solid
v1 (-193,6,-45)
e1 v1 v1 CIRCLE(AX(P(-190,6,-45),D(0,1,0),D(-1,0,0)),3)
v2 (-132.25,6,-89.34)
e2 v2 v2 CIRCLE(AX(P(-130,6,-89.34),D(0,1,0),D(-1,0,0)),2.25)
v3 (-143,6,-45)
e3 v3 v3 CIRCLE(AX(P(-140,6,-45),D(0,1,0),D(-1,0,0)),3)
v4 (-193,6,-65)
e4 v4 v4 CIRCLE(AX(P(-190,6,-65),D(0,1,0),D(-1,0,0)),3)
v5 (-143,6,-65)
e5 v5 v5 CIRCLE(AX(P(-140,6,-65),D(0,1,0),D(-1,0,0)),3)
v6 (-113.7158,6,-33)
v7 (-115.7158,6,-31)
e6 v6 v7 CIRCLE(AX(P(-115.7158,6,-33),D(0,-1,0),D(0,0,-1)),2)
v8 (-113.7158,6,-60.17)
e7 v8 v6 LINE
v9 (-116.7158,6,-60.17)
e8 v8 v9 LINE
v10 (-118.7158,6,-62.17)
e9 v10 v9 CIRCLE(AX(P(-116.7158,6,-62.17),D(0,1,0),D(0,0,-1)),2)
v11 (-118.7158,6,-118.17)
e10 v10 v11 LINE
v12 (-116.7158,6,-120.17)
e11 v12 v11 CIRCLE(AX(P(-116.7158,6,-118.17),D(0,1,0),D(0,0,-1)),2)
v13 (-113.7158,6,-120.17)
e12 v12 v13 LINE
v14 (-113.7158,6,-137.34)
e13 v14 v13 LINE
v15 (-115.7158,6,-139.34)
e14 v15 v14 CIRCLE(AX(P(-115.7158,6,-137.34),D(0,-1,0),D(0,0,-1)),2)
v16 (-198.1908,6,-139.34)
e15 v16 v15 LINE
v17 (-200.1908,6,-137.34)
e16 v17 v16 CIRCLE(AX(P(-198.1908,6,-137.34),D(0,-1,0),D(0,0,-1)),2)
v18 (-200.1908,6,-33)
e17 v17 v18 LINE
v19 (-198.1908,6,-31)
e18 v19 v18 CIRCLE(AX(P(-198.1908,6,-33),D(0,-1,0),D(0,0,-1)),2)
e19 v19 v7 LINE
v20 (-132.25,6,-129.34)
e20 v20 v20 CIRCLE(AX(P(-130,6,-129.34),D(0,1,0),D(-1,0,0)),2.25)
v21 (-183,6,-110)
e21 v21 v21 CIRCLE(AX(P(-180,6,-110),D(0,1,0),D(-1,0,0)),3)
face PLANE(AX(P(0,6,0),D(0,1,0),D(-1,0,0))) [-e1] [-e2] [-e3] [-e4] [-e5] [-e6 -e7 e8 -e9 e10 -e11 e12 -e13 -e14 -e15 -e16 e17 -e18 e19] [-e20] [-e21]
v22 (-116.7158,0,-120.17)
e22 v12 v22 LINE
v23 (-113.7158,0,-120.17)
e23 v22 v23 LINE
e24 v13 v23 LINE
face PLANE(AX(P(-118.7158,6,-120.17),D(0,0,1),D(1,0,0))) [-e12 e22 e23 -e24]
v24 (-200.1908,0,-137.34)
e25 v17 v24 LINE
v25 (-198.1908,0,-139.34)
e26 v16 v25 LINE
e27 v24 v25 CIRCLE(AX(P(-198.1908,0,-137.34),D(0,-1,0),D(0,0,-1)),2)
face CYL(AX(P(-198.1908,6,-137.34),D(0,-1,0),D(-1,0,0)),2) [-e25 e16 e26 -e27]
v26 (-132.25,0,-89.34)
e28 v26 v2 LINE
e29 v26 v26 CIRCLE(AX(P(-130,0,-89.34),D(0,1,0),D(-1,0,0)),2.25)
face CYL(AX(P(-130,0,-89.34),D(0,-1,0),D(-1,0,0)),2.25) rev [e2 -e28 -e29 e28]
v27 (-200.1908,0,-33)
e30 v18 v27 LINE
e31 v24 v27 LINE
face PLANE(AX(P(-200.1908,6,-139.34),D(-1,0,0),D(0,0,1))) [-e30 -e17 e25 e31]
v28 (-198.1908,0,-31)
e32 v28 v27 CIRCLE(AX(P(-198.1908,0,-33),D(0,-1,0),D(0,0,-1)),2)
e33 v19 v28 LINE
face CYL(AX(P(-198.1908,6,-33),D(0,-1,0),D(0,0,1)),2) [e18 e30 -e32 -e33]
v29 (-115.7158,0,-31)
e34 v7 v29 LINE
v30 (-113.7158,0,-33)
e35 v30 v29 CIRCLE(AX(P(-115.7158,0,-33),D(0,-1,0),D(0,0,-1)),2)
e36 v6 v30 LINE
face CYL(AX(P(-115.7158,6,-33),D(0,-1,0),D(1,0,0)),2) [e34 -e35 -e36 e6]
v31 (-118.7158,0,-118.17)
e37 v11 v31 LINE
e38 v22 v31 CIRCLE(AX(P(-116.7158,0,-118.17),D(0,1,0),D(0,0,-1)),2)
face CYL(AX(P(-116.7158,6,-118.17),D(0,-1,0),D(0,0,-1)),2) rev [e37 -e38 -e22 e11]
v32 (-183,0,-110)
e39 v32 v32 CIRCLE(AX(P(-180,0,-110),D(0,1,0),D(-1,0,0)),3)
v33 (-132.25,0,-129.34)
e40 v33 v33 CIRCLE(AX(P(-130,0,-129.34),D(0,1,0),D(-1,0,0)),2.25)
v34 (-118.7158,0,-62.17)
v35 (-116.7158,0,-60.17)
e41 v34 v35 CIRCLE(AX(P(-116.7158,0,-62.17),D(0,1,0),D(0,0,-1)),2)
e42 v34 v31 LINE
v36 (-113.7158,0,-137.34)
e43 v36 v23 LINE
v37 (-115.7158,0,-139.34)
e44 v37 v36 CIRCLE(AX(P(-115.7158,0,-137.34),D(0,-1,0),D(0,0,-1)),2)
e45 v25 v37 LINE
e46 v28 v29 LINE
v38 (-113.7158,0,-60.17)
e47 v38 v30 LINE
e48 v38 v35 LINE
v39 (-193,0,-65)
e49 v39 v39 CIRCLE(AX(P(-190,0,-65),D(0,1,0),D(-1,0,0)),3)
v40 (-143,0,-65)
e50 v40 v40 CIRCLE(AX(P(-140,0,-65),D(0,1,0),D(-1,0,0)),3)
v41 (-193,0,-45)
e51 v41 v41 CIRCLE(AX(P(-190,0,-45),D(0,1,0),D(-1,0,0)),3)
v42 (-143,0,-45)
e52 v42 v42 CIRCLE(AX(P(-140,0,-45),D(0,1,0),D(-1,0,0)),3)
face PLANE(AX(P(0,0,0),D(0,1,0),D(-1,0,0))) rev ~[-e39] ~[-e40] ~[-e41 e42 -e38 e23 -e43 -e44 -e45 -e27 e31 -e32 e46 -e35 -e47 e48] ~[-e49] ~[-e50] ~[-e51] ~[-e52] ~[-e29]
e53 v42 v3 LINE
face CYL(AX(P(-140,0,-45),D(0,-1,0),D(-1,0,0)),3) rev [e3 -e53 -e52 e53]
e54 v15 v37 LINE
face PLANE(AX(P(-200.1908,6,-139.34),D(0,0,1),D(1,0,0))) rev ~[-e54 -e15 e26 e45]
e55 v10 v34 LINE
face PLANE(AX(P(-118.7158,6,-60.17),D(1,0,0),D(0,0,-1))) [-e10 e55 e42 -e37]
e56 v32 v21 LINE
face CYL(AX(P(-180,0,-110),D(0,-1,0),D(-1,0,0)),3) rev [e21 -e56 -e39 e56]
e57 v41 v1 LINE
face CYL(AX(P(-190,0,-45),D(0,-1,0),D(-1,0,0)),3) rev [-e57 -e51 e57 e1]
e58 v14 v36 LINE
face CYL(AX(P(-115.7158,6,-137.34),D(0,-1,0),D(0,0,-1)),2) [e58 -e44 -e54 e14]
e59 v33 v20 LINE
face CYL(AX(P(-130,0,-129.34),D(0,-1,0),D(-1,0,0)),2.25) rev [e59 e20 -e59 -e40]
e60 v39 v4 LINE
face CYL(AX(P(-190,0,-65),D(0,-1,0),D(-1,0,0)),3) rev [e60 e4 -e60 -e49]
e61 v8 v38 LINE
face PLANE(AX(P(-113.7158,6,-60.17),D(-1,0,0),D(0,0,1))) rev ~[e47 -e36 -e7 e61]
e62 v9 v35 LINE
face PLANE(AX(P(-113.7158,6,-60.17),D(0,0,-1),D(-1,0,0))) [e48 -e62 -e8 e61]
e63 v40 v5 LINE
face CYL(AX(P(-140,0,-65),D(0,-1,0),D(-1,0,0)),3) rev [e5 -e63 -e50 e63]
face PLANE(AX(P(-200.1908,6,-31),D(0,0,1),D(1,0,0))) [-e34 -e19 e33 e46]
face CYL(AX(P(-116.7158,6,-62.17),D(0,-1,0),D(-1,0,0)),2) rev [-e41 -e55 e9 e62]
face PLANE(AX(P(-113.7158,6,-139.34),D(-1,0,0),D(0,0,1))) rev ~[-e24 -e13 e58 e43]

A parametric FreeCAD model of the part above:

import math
import FreeCAD as App
import Part
import Sketcher
from FreeCAD import Vector


def edges_at(feature, points):
    """Names of the edges that pass closest to the given points."""
    edges = feature.Shape.Edges
    near = lambda p: min(range(len(edges)), key=lambda i: edges[i].distToShape(Part.Vertex(*p))[0])
    return sorted({f"Edge{near(p) + 1}" for p in points})


def add_polygon(sketch, points):
    """Adds a closed chain of lines whose ends are joined by coincident constraints."""
    first, n = sketch.GeometryCount, len(points)
    for a, b in zip(points, points[1:] + points[:1]):
        sketch.addGeometry(Part.LineSegment(App.Vector(*a, 0), App.Vector(*b, 0)), False)
    for i in range(n):
        sketch.addConstraint(Sketcher.Constraint("Coincident", first + i, 2, first + (i + 1) % n, 1))

doc = App.newDocument("Part")
params = doc.addObject("Spreadsheet::Sheet", "Params")
for row, (alias, value) in enumerate([
    ("sketch1_diameter", "6 mm"),
    ("sketch1_diameter2", "4.5 mm"),
    ("pad1_length", "6 mm"),
    ("sketch2_height", "60 mm"),
    ("sketch2_width", "5 mm"),
    ("sketch2_height2", "29.17 mm"),
    ("sketch2_height3", "108.34 mm"),
    ("fillet_radius", "2 mm"),
], start=1):
    params.set(f"A{row}", alias)
    params.set(f"B{row}", "=" + value)
    params.setAlias(f"B{row}", alias)

body = doc.addObject("PartDesign::Body", "Body")

# Sketch on XZ plane
sketch1 = body.newObject("Sketcher::SketchObject", "Sketch")
sketch1.AttachmentSupport = (doc.getObject("XZ_Plane"), [""])
sketch1.MapMode = "FlatFace"
sketch1.addGeometry([
    Part.ArcOfCircle(Part.Circle(Vector(-227.4, -176.6, 0), Vector(0, 0, 1), 2.8), math.radians(180), math.radians(270)),  # 0
    Part.LineSegment(Vector(-230.2, -176.6, 0), Vector(-230.2, -3.8, 0)),  # 1
    Part.ArcOfCircle(Part.Circle(Vector(-227.4, -3.8, 0), Vector(0, 0, 1), 2.8), math.radians(90), math.radians(180)),  # 2
    Part.LineSegment(Vector(-227.4, -1, 0), Vector(0, -1, 0)),  # 3
    Part.ArcOfCircle(Part.Circle(Vector(0, -3.8, 0), Vector(0, 0, 1), 2.8), math.radians(0), math.radians(90)),  # 4
    Part.LineSegment(Vector(2.8, -3.8, 0), Vector(2.8, -176.6, 0)),  # 5
    Part.ArcOfCircle(Part.Circle(Vector(0, -176.6, 0), Vector(0, 0, 1), 2.8), math.radians(-90), math.radians(0)),  # 6
    Part.LineSegment(Vector(0, -179.3, 0), Vector(-227.4, -179.3, 0)),  # 7
    Part.Circle(Vector(-90, -129.3, 0), Vector(0, 0, 1), 2.2),  # 8
    Part.Circle(Vector(-55, -110, 0), Vector(0, 0, 1), 3),  # 9
    Part.Circle(Vector(-130, -129.3, 0), Vector(0, 0, 1), 2.2),  # 10
    Part.Circle(Vector(-180, -110, 0), Vector(0, 0, 1), 3),  # 11
    Part.Circle(Vector(-40, -65, 0), Vector(0, 0, 1), 3),  # 12
    Part.Circle(Vector(-40, -45, 0), Vector(0, 0, 1), 3),  # 13
    Part.Circle(Vector(-90, -89.3, 0), Vector(0, 0, 1), 2.2),  # 14
    Part.Circle(Vector(-90, -65, 0), Vector(0, 0, 1), 3),  # 15
    Part.Circle(Vector(-90, -45, 0), Vector(0, 0, 1), 3),  # 16
    Part.Circle(Vector(-130, -89.3, 0), Vector(0, 0, 1), 2.2),  # 17
    Part.Circle(Vector(-140, -65, 0), Vector(0, 0, 1), 3),  # 18
    Part.Circle(Vector(-140, -45, 0), Vector(0, 0, 1), 3),  # 19
    Part.Circle(Vector(-190, -65, 0), Vector(0, 0, 1), 3),  # 20
    Part.Circle(Vector(-190, -45, 0), Vector(0, 0, 1), 3),  # 21
], False)
sketch1.addConstraint([
    Sketcher.Constraint("Tangent", 0, 1, 1, 1),
    Sketcher.Constraint("Tangent", 1, 2, 2, 2),
    Sketcher.Constraint("Tangent", 2, 1, 3, 1),
    Sketcher.Constraint("Tangent", 3, 2, 4, 2),
    Sketcher.Constraint("Tangent", 4, 1, 5, 1),
    Sketcher.Constraint("Tangent", 5, 2, 6, 2),
    Sketcher.Constraint("Tangent", 6, 1, 7, 1),
    Sketcher.Constraint("Tangent", 7, 2, 0, 2),
    Sketcher.Constraint("Vertical", 1),
    Sketcher.Constraint("Horizontal", 3),
    Sketcher.Constraint("Vertical", 5),
    Sketcher.Constraint("Horizontal", 7),
    Sketcher.Constraint("Equal", 0, 2),
    Sketcher.Constraint("Equal", 2, 4),
    Sketcher.Constraint("Equal", 4, 6),
    Sketcher.Constraint("Equal", 8, 10),
    Sketcher.Constraint("Equal", 9, 11),
    Sketcher.Constraint("Equal", 11, 12),
    Sketcher.Constraint("Equal", 12, 13),
    Sketcher.Constraint("Equal", 10, 14),
    Sketcher.Constraint("Equal", 13, 15),
    Sketcher.Constraint("Equal", 15, 16),
    Sketcher.Constraint("Equal", 14, 17),
    Sketcher.Constraint("Equal", 16, 18),
    Sketcher.Constraint("Equal", 18, 19),
    Sketcher.Constraint("Equal", 19, 20),
    Sketcher.Constraint("Equal", 20, 21),
    Sketcher.Constraint("PointOnObject", 4, 3, -2),
    Sketcher.Constraint("Horizontal", 8, 3, 10, 3),
    Sketcher.Constraint("Horizontal", 9, 3, 11, 3),
    Sketcher.Constraint("Horizontal", 12, 3, 15, 3),
    Sketcher.Constraint("Horizontal", 13, 3, 16, 3),
    Sketcher.Constraint("Horizontal", 14, 3, 17, 3),
    Sketcher.Constraint("Horizontal", 15, 3, 18, 3),
    Sketcher.Constraint("Horizontal", 16, 3, 19, 3),
    Sketcher.Constraint("Horizontal", 18, 3, 20, 3),
    Sketcher.Constraint("Horizontal", 19, 3, 21, 3),
    Sketcher.Constraint("Vertical", 12, 3, 13, 3),
    Sketcher.Constraint("Vertical", 8, 3, 14, 3),
    Sketcher.Constraint("Vertical", 14, 3, 15, 3),
    Sketcher.Constraint("Vertical", 15, 3, 16, 3),
    Sketcher.Constraint("Vertical", 10, 3, 17, 3),
    Sketcher.Constraint("Vertical", 18, 3, 19, 3),
    Sketcher.Constraint("Vertical", 20, 3, 21, 3),
    Sketcher.Constraint("Diameter", 9, 6.0),
    Sketcher.Constraint("Diameter", 8, 4.5),
    Sketcher.Constraint("DistanceX", 8, 3, -1, 1, 90.0),
    Sketcher.Constraint("DistanceX", 9, 3, -1, 1, 55.0),
    Sketcher.Constraint("DistanceY", 9, 3, -1, 1, 110.0),
    Sketcher.Constraint("DistanceX", 12, 3, -1, 1, 40.0),
    Sketcher.Constraint("DistanceY", 2, 1, -1, 1, 1.0),
    Sketcher.Constraint("DistanceX", 10, 3, 8, 3, 40.0),
    Sketcher.Constraint("DistanceX", 11, 3, 10, 3, 50.0),
    Sketcher.Constraint("DistanceY", 8, 3, 14, 3, 40.0),
    Sketcher.Constraint("DistanceX", 18, 3, 15, 3, 50.0),
    Sketcher.Constraint("DistanceX", 20, 3, 18, 3, 50.0),
    Sketcher.Constraint("DistanceY", 6, 1, 8, 3, 50.0),
    Sketcher.Constraint("Radius", 0, 2.7592),
    Sketcher.Constraint("DistanceY", 6, 1, -1, 1, 179.34),
    Sketcher.Constraint("DistanceX", 3, 1, 3, 2, 227.4316),
    Sketcher.Constraint("DistanceY", 12, 3, -1, 1, 65.0),
    Sketcher.Constraint("DistanceY", 13, 3, -1, 1, 45.0),
])
sketch1.setExpression("Constraints[44]", "Params.sketch1_diameter")
sketch1.setExpression("Constraints[45]", "Params.sketch1_diameter2")
pad1 = body.newObject("PartDesign::Pad", "Pad")
pad1.Profile = sketch1
pad1.setExpression("Length", "Params.pad1_length")
pad1.Reversed = True

# Sketch on XZ plane
sketch2 = body.newObject("Sketcher::SketchObject", "Sketch001")
sketch2.AttachmentSupport = (doc.getObject("XZ_Plane"), [""])
sketch2.MapMode = "FlatFace"
sketch2.AttachmentOffset = App.Placement(Vector(0, 0, -6), App.Rotation())
sketch2.addGeometry(Part.ArcOfCircle(Part.Circle(Vector(-227.4, -176.6, 0), Vector(0, 0, 1), 2.8), math.radians(180), math.radians(270)), False)  # 0
sketch2.addGeometry(Part.LineSegment(Vector(-230.2, -176.6, 0), Vector(-230.2, -3.8, 0)), False)  # 1
sketch2.addGeometry(Part.ArcOfCircle(Part.Circle(Vector(-227.4, -3.8, 0), Vector(0, 0, 1), 2.8), math.radians(90), math.radians(180)), False)  # 2
sketch2.addGeometry(Part.LineSegment(Vector(-227.4, -1, 0), Vector(0, -1, 0)), False)  # 3
sketch2.addGeometry(Part.ArcOfCircle(Part.Circle(Vector(0, -3.8, 0), Vector(0, 0, 1), 2.8), math.radians(0), math.radians(90)), False)  # 4
sketch2.addGeometry(Part.LineSegment(Vector(2.8, -3.8, 0), Vector(2.8, -176.6, 0)), False)  # 5
sketch2.addGeometry(Part.ArcOfCircle(Part.Circle(Vector(0, -176.6, 0), Vector(0, 0, 1), 2.8), math.radians(-90), math.radians(0)), False)  # 6
sketch2.addGeometry(Part.LineSegment(Vector(0, -179.3, 0), Vector(-227.4, -179.3, 0)), False)  # 7
add_polygon(sketch2, [(-113.7, -60.2), (-113.7, -31), (-200.2, -31), (-200.2, -139.3), (-113.7, -139.3), (-113.7, -120.2), (-118.7, -120.2), (-118.7, -60.2)])  # lines 8-15
sketch2.addConstraint([
    Sketcher.Constraint("Tangent", 0, 1, 1, 1),
    Sketcher.Constraint("Tangent", 1, 2, 2, 2),
    Sketcher.Constraint("Tangent", 2, 1, 3, 1),
    Sketcher.Constraint("Tangent", 3, 2, 4, 2),
    Sketcher.Constraint("Tangent", 4, 1, 5, 1),
    Sketcher.Constraint("Tangent", 5, 2, 6, 2),
    Sketcher.Constraint("Tangent", 6, 1, 7, 1),
    Sketcher.Constraint("Tangent", 7, 2, 0, 2),
    Sketcher.Constraint("Vertical", 1),
    Sketcher.Constraint("Horizontal", 3),
    Sketcher.Constraint("Vertical", 5),
    Sketcher.Constraint("Horizontal", 7),
    Sketcher.Constraint("Vertical", 8),
    Sketcher.Constraint("Horizontal", 9),
    Sketcher.Constraint("Vertical", 10),
    Sketcher.Constraint("Horizontal", 11),
    Sketcher.Constraint("Vertical", 12),
    Sketcher.Constraint("Horizontal", 13),
    Sketcher.Constraint("Vertical", 14),
    Sketcher.Constraint("Horizontal", 15),
    Sketcher.Constraint("Equal", 0, 2),
    Sketcher.Constraint("Equal", 2, 4),
    Sketcher.Constraint("Equal", 4, 6),
    Sketcher.Constraint("PointOnObject", 4, 3, -2),
    Sketcher.Constraint("Vertical", 8, 2, 11, 2),
    Sketcher.Constraint("DistanceY", 14, 1, 14, 2, 60.0),
    Sketcher.Constraint("DistanceY", 8, 2, 2, 1, 30.0),
    Sketcher.Constraint("DistanceX", 1, 2, 9, 2, 30.0),
    Sketcher.Constraint("DistanceY", 7, 2, 10, 2, 40.0),
    Sketcher.Constraint("DistanceX", 13, 2, 13, 1, 5.0),
    Sketcher.Constraint("DistanceX", 3, 1, 3, 2, 227.4316),
    Sketcher.Constraint("DistanceY", 1, 1, 1, 2, 172.8216),
    Sketcher.Constraint("DistanceY", 2, 1, -1, 1, 1.0),
    Sketcher.Constraint("DistanceY", 8, 1, 8, 2, 29.17),
    Sketcher.Constraint("DistanceY", 10, 2, 10, 1, 108.34),
    Sketcher.Constraint("DistanceX", 9, 2, 9, 1, 86.475),
])
sketch2.setExpression("Constraints[33]", "Params.sketch2_height")
sketch2.setExpression("Constraints[37]", "Params.sketch2_width")
sketch2.setExpression("Constraints[41]", "Params.sketch2_height2")
sketch2.setExpression("Constraints[42]", "Params.sketch2_height3")
pocket1 = body.newObject("PartDesign::Pocket", "Pocket")
pocket1.Profile = sketch2
pocket1.Type = "ThroughAll"
pocket1.Reversed = True
doc.recompute()

fillet = body.newObject("PartDesign::Fillet", "Fillet")
fillet.Base = (pocket1, edges_at(pocket1, [
    (-113.716, 3, -31),
    (-200.191, 3, -31),
    (-113.716, 3, -139.34),
    (-118.716, 3, -120.17),
    (-118.716, 3, -60.17),
    (-200.191, 3, -139.34),
]))
fillet.setExpression("Radius", "Params.fillet_radius")

doc.recompute()
